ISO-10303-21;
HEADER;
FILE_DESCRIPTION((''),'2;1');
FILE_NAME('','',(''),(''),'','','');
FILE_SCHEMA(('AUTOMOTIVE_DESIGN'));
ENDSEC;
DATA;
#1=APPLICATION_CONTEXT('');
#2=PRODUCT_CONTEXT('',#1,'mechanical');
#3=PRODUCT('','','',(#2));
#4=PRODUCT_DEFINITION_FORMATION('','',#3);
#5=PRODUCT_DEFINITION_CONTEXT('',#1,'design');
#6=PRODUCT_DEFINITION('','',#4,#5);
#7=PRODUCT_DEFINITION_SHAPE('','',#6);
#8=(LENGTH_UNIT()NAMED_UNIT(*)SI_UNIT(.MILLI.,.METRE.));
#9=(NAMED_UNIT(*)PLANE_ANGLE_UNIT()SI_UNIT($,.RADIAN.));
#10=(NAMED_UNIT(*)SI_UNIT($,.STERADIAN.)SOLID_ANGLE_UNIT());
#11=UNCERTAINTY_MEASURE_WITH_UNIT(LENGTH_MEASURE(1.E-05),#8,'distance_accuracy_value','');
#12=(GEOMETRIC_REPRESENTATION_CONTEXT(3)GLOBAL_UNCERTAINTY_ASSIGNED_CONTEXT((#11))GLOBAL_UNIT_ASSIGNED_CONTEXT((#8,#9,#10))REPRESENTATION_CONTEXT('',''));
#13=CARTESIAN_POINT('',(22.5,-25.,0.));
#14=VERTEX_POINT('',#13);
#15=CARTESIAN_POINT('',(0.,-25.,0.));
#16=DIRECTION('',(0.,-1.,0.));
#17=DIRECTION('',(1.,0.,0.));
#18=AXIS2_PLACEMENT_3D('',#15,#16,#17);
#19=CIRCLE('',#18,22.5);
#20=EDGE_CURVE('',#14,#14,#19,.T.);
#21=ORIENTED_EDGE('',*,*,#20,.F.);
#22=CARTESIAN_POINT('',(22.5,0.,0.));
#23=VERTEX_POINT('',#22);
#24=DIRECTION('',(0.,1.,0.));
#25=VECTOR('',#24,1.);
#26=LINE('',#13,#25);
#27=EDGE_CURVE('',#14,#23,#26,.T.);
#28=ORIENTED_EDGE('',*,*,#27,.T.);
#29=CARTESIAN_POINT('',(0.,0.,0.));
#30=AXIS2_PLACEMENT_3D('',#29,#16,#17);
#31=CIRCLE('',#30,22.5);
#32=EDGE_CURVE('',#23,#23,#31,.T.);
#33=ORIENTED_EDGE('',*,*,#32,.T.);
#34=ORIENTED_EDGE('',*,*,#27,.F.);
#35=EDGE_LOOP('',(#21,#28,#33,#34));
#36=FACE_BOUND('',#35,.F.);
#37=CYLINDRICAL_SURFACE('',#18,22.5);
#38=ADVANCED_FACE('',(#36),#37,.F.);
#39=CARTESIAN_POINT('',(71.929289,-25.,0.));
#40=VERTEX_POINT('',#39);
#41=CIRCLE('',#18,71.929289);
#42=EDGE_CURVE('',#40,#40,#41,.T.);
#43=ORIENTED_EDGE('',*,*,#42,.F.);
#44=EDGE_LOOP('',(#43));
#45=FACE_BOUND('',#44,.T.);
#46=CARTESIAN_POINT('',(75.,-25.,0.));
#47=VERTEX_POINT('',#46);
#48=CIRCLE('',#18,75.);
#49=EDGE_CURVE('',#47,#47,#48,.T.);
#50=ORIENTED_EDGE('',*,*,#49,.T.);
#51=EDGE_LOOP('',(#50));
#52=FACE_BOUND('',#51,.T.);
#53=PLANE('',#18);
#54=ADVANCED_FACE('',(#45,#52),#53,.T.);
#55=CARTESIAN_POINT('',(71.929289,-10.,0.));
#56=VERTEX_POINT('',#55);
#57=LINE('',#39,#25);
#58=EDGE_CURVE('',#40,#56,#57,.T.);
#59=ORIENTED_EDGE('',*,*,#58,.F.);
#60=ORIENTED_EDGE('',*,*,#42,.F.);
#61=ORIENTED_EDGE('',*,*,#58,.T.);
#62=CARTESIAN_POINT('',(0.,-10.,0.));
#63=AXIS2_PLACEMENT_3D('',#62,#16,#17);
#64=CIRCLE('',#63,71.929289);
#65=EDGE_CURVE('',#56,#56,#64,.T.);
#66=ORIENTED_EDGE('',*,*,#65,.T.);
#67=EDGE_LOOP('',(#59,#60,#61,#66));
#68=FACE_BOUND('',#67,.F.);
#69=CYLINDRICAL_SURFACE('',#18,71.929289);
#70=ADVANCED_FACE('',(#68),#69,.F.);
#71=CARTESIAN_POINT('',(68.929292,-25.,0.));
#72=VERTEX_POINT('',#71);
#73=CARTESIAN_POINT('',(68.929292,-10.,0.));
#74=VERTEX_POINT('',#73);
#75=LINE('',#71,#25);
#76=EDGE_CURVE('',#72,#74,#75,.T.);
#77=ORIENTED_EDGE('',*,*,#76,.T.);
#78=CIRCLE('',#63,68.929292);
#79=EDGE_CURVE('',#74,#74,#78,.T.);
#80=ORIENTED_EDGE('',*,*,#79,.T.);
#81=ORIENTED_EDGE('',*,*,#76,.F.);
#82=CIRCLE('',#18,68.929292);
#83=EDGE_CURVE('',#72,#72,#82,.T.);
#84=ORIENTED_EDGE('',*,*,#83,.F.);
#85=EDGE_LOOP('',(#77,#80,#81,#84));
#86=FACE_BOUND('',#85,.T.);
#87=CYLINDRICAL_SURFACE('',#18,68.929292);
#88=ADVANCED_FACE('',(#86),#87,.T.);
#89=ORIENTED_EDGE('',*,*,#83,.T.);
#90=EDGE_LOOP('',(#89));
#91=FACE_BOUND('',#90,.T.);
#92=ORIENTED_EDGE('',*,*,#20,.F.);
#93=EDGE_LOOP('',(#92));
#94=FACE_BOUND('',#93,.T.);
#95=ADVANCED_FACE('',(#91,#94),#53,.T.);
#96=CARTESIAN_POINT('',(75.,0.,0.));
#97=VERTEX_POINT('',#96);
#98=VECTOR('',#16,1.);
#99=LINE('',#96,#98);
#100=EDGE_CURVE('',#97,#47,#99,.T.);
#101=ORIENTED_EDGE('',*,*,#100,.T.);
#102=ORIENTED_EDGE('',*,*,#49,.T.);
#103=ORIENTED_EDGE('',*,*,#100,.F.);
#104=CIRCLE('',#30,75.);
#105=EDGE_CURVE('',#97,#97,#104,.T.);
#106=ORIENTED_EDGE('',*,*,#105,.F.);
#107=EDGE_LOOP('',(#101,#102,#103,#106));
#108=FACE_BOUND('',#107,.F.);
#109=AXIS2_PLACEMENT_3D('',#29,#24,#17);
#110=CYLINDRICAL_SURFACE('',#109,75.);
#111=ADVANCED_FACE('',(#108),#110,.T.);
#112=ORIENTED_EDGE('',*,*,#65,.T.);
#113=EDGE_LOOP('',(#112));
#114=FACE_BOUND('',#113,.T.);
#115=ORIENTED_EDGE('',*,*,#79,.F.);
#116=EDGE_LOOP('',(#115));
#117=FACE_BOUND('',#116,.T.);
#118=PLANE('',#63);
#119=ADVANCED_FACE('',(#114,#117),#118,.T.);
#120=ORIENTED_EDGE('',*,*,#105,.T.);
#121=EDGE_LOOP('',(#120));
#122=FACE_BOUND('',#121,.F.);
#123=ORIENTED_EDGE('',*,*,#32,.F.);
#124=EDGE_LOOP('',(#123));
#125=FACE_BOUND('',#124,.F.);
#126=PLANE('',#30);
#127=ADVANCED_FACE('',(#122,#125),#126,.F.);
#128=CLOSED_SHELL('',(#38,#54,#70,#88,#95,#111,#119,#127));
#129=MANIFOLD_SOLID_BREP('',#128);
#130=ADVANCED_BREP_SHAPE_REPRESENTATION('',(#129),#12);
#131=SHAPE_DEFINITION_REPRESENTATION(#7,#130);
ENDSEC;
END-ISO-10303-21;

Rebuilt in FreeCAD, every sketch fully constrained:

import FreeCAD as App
import Part
import Sketcher

doc = App.newDocument("Part")
params = doc.addObject("Spreadsheet::Sheet", "Params")
for row, (alias, value) in enumerate([
    ("sketch1_diameter", "150 mm"),
    ("pad1_length", "25 mm"),
    ("sketch2_diameter", "45 mm"),
    ("pocket2_length", "15 mm"),
], start=1):
    params.set(f"A{row}", alias)
    params.set(f"B{row}", "=" + value)
    params.setAlias(f"B{row}", alias)

body = doc.addObject("PartDesign::Body", "Body")

# Sketch on XZ plane
sketch1 = doc.addObject("Sketcher::SketchObject", "Sketch")
body.addObject(sketch1)
sketch1.AttachmentSupport = (doc.XZ_Plane, [""])
sketch1.MapMode = "FlatFace"
sketch1.addGeometry(Part.Circle(App.Vector(0, 0, 0), App.Vector(0, 0, 1), 75), False)
sketch1.addConstraint([
    Sketcher.Constraint("Coincident", 0, 3, -1, 1),
    Sketcher.Constraint("Diameter", 0, 150.0),
])
sketch1.setExpression("Constraints[1]", "Params.sketch1_diameter")
pad1 = doc.addObject("PartDesign::Pad", "Pad")
body.addObject(pad1)
pad1.Profile = sketch1
pad1.setExpression("Length", "Params.pad1_length")

# Sketch on XZ plane
sketch2 = doc.addObject("Sketcher::SketchObject", "Sketch001")
body.addObject(sketch2)
sketch2.AttachmentSupport = (doc.XZ_Plane, [""])
sketch2.MapMode = "FlatFace"
sketch2.AttachmentOffset = App.Placement(App.Vector(0, 0, 25), App.Rotation())
sketch2.addGeometry(Part.Circle(App.Vector(0, 0, 0), App.Vector(0, 0, 1), 22), False)
sketch2.addConstraint([
    Sketcher.Constraint("Coincident", 0, 3, -1, 1),
    Sketcher.Constraint("Diameter", 0, 45.0),
])
sketch2.setExpression("Constraints[1]", "Params.sketch2_diameter")
pocket1 = doc.addObject("PartDesign::Pocket", "Pocket")
body.addObject(pocket1)
pocket1.Profile = sketch2
pocket1.Type = "ThroughAll"

# Sketch on XZ plane
sketch3 = doc.addObject("Sketcher::SketchObject", "Sketch002")
body.addObject(sketch3)
sketch3.AttachmentSupport = (doc.XZ_Plane, [""])
sketch3.MapMode = "FlatFace"
sketch3.AttachmentOffset = App.Placement(App.Vector(0, 0, 25), App.Rotation())
sketch3.addGeometry([
    Part.Circle(App.Vector(0, 0, 0), App.Vector(0, 0, 1), 72),
    Part.Circle(App.Vector(0, 0, 0), App.Vector(0, 0, 1), 69),
], False)
sketch3.addConstraint([
    Sketcher.Constraint("Coincident", 0, 3, -1, 1),
    Sketcher.Constraint("Coincident", 1, 3, -1, 1),
    Sketcher.Constraint("Diameter", 0, 143.858578),
    Sketcher.Constraint("Diameter", 1, 137.858584),
])
pocket2 = doc.addObject("PartDesign::Pocket", "Pocket001")
body.addObject(pocket2)
pocket2.Profile = sketch3
pocket2.setExpression("Length", "Params.pocket2_length")

doc.recompute()
